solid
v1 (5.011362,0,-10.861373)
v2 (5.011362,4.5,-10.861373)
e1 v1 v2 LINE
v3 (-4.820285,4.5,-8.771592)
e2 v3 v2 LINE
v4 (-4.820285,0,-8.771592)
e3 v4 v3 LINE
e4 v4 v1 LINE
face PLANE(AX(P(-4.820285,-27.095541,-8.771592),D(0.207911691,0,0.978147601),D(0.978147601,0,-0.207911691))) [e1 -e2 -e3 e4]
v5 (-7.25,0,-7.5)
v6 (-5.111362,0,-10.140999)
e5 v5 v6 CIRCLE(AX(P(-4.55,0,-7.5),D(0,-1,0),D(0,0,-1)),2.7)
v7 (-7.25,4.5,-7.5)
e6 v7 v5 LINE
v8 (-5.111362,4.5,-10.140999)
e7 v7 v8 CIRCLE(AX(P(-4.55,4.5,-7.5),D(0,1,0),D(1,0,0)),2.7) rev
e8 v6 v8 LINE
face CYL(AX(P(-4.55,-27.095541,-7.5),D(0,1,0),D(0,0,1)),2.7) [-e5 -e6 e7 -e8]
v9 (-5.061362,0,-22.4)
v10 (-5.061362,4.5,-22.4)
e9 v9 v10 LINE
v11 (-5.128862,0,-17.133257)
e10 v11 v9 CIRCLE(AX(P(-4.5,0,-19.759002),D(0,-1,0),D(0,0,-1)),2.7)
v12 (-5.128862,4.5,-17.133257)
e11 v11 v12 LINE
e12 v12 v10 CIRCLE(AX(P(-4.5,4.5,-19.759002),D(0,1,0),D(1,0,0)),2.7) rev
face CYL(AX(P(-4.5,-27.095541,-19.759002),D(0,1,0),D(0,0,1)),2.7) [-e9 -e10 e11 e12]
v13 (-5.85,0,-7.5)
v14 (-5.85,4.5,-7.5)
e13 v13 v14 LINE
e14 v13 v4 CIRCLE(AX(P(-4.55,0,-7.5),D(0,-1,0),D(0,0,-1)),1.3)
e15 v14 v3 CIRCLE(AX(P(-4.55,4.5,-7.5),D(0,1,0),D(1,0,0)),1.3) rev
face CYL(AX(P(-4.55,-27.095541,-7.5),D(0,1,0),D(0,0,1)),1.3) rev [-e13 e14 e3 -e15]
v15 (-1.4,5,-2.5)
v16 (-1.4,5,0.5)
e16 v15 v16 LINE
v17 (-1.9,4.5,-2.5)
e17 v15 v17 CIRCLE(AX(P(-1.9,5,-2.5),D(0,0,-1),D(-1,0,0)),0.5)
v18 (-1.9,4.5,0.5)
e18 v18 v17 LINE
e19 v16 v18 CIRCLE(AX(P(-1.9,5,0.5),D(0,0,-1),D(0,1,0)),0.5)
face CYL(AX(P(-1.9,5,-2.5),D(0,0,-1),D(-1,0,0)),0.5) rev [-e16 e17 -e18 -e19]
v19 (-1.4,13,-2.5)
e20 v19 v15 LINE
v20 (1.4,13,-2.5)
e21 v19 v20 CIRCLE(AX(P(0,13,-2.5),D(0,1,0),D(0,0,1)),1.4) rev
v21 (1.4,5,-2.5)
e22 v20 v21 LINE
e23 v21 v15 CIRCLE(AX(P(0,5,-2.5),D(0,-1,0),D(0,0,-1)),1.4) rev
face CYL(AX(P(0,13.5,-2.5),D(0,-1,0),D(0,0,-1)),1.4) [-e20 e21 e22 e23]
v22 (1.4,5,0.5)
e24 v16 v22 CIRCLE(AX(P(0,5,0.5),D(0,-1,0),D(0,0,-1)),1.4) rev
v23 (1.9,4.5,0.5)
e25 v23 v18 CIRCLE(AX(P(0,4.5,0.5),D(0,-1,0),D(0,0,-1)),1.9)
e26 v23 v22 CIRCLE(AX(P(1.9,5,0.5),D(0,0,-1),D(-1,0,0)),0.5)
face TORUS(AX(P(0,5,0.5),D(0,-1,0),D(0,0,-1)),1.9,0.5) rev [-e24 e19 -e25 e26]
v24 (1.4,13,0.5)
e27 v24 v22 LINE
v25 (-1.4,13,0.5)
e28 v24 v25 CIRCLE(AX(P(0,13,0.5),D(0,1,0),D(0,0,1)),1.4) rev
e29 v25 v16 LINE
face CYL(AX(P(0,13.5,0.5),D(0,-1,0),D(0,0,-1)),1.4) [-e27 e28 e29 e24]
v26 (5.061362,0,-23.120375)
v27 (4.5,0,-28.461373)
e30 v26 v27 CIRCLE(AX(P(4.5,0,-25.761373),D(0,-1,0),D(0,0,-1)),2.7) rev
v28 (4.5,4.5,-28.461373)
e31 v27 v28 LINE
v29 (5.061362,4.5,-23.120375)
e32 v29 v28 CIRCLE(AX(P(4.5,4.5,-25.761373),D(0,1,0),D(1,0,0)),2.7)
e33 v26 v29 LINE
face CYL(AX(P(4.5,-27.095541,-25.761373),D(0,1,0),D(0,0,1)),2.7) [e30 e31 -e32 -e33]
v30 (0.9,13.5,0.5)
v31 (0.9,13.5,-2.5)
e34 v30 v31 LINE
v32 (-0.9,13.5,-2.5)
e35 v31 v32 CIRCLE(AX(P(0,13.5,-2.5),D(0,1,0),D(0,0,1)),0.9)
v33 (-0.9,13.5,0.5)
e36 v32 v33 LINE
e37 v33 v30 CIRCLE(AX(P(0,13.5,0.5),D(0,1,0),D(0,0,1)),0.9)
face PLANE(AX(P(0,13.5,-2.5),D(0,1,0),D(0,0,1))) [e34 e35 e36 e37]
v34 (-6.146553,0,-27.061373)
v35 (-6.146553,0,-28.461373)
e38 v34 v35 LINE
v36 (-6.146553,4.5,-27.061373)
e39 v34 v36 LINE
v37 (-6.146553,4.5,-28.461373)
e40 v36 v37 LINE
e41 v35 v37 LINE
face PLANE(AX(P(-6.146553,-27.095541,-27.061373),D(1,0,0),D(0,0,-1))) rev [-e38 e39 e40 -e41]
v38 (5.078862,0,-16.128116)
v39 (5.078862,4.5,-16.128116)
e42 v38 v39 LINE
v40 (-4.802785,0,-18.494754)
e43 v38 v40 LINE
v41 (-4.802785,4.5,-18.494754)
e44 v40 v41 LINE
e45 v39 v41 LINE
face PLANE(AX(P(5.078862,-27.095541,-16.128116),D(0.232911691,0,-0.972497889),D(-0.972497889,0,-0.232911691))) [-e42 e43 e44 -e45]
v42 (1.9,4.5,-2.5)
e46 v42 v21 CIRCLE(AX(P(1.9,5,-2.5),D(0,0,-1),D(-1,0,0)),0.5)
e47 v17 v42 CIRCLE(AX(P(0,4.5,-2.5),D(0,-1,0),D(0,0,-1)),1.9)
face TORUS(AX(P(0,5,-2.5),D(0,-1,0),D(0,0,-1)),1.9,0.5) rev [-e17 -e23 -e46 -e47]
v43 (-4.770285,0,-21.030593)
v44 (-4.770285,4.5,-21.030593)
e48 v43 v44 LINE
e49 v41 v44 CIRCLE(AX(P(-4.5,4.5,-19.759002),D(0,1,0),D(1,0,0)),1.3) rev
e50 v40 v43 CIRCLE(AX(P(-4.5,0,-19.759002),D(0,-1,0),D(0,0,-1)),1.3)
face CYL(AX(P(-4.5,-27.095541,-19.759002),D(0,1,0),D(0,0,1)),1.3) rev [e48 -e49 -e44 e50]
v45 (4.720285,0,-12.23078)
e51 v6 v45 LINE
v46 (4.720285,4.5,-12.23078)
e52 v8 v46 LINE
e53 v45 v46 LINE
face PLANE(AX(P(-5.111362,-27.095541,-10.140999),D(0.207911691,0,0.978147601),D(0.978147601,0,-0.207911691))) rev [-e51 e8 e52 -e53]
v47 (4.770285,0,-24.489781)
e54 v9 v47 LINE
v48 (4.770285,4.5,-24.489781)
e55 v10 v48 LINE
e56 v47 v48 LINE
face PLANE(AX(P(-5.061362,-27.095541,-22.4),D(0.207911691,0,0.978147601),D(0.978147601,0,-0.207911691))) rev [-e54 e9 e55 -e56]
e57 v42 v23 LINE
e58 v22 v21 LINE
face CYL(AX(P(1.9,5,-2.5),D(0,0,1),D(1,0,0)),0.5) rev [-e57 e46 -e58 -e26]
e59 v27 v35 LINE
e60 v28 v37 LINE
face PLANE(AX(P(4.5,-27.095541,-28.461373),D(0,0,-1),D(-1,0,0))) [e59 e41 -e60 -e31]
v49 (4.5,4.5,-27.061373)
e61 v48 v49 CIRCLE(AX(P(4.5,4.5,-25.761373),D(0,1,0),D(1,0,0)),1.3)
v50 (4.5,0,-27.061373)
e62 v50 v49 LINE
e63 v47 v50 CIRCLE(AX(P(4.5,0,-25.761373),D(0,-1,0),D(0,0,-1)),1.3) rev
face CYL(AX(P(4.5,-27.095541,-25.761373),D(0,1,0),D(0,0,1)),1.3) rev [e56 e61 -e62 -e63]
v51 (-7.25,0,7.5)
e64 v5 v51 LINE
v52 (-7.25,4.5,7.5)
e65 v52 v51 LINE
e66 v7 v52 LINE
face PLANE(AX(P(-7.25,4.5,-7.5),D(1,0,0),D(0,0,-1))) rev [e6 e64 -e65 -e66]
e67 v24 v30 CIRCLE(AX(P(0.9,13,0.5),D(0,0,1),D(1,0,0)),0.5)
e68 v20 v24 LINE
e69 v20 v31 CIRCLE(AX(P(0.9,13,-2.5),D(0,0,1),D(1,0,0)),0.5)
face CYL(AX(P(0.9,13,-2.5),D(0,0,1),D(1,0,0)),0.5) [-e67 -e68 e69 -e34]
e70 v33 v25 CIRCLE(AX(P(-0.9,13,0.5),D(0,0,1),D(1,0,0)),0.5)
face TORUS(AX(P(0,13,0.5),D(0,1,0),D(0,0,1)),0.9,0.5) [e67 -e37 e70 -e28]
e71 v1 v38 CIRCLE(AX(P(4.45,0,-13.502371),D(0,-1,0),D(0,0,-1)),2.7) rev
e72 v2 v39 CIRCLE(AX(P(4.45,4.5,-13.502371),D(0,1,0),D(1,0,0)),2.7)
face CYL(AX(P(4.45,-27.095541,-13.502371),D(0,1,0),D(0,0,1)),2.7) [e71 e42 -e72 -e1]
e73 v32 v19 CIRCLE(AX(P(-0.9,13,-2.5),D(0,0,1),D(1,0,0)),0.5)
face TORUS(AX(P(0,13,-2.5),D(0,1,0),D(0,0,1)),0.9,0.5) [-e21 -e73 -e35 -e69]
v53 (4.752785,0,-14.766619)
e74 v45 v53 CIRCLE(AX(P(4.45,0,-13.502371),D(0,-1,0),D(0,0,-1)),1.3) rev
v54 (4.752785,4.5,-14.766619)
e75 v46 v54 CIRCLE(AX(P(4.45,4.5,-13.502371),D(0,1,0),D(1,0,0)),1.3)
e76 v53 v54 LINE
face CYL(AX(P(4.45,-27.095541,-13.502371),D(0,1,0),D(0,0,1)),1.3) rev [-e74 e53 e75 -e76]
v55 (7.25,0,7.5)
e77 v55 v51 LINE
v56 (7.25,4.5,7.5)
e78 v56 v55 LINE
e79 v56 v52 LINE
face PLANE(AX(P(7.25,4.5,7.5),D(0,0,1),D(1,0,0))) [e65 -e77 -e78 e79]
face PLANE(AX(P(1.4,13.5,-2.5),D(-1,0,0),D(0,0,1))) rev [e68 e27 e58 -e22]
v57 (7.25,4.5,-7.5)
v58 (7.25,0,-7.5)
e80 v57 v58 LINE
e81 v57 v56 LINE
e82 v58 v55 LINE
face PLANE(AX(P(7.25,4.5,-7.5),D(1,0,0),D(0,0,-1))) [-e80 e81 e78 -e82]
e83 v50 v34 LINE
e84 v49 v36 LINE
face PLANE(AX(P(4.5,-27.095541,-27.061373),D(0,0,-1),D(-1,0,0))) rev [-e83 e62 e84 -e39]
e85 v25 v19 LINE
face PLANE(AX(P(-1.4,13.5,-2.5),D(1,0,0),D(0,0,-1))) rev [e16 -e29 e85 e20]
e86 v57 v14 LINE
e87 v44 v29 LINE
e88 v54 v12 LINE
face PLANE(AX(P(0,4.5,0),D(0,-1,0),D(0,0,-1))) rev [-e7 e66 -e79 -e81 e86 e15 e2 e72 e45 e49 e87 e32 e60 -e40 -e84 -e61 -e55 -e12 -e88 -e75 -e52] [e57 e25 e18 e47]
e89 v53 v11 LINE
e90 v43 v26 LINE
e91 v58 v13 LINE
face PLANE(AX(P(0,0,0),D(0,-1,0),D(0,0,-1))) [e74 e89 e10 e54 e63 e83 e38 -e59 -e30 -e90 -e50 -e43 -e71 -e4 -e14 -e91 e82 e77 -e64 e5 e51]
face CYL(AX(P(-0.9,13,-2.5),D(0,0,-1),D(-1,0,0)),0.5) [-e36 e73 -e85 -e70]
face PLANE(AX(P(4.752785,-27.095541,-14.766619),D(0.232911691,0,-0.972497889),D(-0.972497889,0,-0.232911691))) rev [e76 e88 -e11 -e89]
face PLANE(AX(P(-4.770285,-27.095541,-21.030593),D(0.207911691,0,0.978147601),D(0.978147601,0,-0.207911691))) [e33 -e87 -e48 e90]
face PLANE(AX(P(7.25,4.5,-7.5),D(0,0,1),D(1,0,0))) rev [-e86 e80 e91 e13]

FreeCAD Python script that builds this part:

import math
import FreeCAD as App
import Part
import Sketcher
from FreeCAD import Vector
Q = App.Units.Quantity


def edges_at(feature, points):
    """Names of the edges that pass closest to the given points."""
    edges = feature.Shape.Edges
    near = lambda p: min(range(len(edges)), key=lambda i: edges[i].distToShape(Part.Vertex(*p))[0])
    return sorted({f"Edge{near(p) + 1}" for p in points})


def add_polygon(sketch, points):
    """Adds a closed chain of lines whose ends are joined by coincident constraints."""
    first, n = sketch.GeometryCount, len(points)
    for a, b in zip(points, points[1:] + points[:1]):
        sketch.addGeometry(Part.LineSegment(App.Vector(*a, 0), App.Vector(*b, 0)), False)
    for i in range(n):
        sketch.addConstraint(Sketcher.Constraint("Coincident", first + i, 2, first + (i + 1) % n, 1))

doc = App.newDocument("Part")
body = doc.addObject("PartDesign::Body", "Body")

sketch1 = body.newObject("Sketcher::SketchObject", "Sketch")
sketch1.AttachmentSupport = (doc.getObject("XZ_Plane"), [""])
sketch1.MapMode = "FlatFace"
add_polygon(sketch1, [(-7, -8), (-7, 8), (7, 8), (7, -8)])
sketch1.addConstraint([
    Sketcher.Constraint("Vertical", 0),
    Sketcher.Constraint("Horizontal", 1),
    Sketcher.Constraint("Vertical", 2),
    Sketcher.Constraint("Horizontal", 3),
    Sketcher.Constraint("Symmetric", 0, 2, 2, 2, -1, 1),
    Sketcher.Constraint("DistanceY", 0, 1, 0, 2, 15.0),
    Sketcher.Constraint("DistanceX", 1, 1, 1, 2, 14.5),
])
pad1 = body.newObject("PartDesign::Pad", "Pad")
pad1.Profile = sketch1
pad1.Length = 4.5
pad1.Reversed = True

sketch2 = body.newObject("Sketcher::SketchObject", "Sketch001")
sketch2.AttachmentSupport = (doc.getObject("XZ_Plane"), [""])
sketch2.MapMode = "FlatFace"
sketch2.AttachmentOffset = App.Placement(Vector(0, 0, -4.5), App.Rotation())
sketch2.addGeometry([
    Part.LineSegment(Vector(-5.8, -5.5, 0), Vector(-5.8, -7.5, 0)),
    Part.ArcOfCircle(Part.Circle(Vector(-4.5, -7.5, 0), Vector(0, 0, 1), 1.3), math.radians(180), math.radians(258)),
    Part.LineSegment(Vector(-4.8, -8.8, 0), Vector(5, -10.9, 0)),
    Part.ArcOfCircle(Part.Circle(Vector(4.5, -13.5, 0), Vector(0, 0, 1), 2.7), math.radians(-77), math.radians(78)),
    Part.LineSegment(Vector(5.1, -16.1, 0), Vector(-4.8, -18.5, 0)),
    Part.ArcOfCircle(Part.Circle(Vector(-4.5, -19.8, 0), Vector(0, 0, 1), 1.3), math.radians(103), math.radians(258)),
    Part.LineSegment(Vector(-4.8, -21, 0), Vector(5.1, -23.1, 0)),
    Part.ArcOfCircle(Part.Circle(Vector(4.5, -25.8, 0), Vector(0, 0, 1), 2.7), math.radians(-90), math.radians(78)),
    Part.LineSegment(Vector(4.5, -28.5, 0), Vector(-6.1, -28.5, 0)),
    Part.LineSegment(Vector(-6.1, -28.5, 0), Vector(-6.1, -27.1, 0)),
    Part.LineSegment(Vector(-6.1, -27.1, 0), Vector(4.5, -27.1, 0)),
    Part.ArcOfCircle(Part.Circle(Vector(4.5, -25.8, 0), Vector(0, 0, 1), 1.3), math.radians(-90), math.radians(78)),
    Part.LineSegment(Vector(4.8, -24.5, 0), Vector(-5.1, -22.4, 0)),
    Part.ArcOfCircle(Part.Circle(Vector(-4.5, -19.8, 0), Vector(0, 0, 1), 2.7), math.radians(103), math.radians(258)),
    Part.LineSegment(Vector(-5.1, -17.1, 0), Vector(4.8, -14.8, 0)),
    Part.ArcOfCircle(Part.Circle(Vector(4.5, -13.5, 0), Vector(0, 0, 1), 1.3), math.radians(-77), math.radians(78)),
    Part.LineSegment(Vector(4.7, -12.2, 0), Vector(-5.1, -10.1, 0)),
    Part.ArcOfCircle(Part.Circle(Vector(-4.6, -7.5, 0), Vector(0, 0, 1), 2.7), math.radians(180), math.radians(258)),
    Part.LineSegment(Vector(-7.2, -7.5, 0), Vector(-7.2, -5.5, 0)),
    Part.LineSegment(Vector(-7.2, -5.5, 0), Vector(-5.8, -5.5, 0)),
], False)
sketch2.addConstraint([
    Sketcher.Constraint("Tangent", 0, 2, 1, 1),
    Sketcher.Constraint("Tangent", 1, 2, 2, 1),
    Sketcher.Constraint("Tangent", 2, 2, 3, 2),
    Sketcher.Constraint("Tangent", 3, 1, 4, 1),
    Sketcher.Constraint("Tangent", 4, 2, 5, 1),
    Sketcher.Constraint("Tangent", 5, 2, 6, 1),
    Sketcher.Constraint("Tangent", 6, 2, 7, 2),
    Sketcher.Constraint("Tangent", 7, 1, 8, 1),
    Sketcher.Constraint("Coincident", 8, 2, 9, 1),
    Sketcher.Constraint("Coincident", 9, 2, 10, 1),
    Sketcher.Constraint("Tangent", 10, 2, 11, 1),
    Sketcher.Constraint("Tangent", 11, 2, 12, 1),
    Sketcher.Constraint("Tangent", 12, 2, 13, 2),
    Sketcher.Constraint("Tangent", 13, 1, 14, 1),
    Sketcher.Constraint("Tangent", 14, 2, 15, 1),
    Sketcher.Constraint("Tangent", 15, 2, 16, 1),
    Sketcher.Constraint("Tangent", 16, 2, 17, 2),
    Sketcher.Constraint("Tangent", 17, 1, 18, 1),
    Sketcher.Constraint("Coincident", 18, 2, 19, 1),
    Sketcher.Constraint("Coincident", 19, 2, 0, 1),
    Sketcher.Constraint("Vertical", 0),
    Sketcher.Constraint("Horizontal", 8),
    Sketcher.Constraint("Vertical", 9),
    Sketcher.Constraint("Horizontal", 10),
    Sketcher.Constraint("Vertical", 18),
    Sketcher.Constraint("Horizontal", 19),
    Sketcher.Constraint("Coincident", 11, 3, 7, 3),
    Sketcher.Constraint("Coincident", 13, 3, 5, 3),
    Sketcher.Constraint("Coincident", 15, 3, 3, 3),
    Sketcher.Constraint("Coincident", 17, 3, 1, 3),
    Sketcher.Constraint("Equal", 1, 5),
    Sketcher.Constraint("Equal", 3, 7),
    Sketcher.Constraint("Equal", 5, 11),
    Sketcher.Constraint("Equal", 7, 13),
    Sketcher.Constraint("Equal", 11, 15),
    Sketcher.Constraint("Equal", 13, 17),
    Sketcher.Constraint("Parallel", 2, 6),
    Sketcher.Constraint("Equal", 2, 6),
    Sketcher.Constraint("Radius", 1, 1.3),
    Sketcher.Constraint("Radius", 3, 2.7),
    Sketcher.Constraint("Angle", 2, Q("-12 deg")),
    Sketcher.Constraint("DistanceX", 1, 3, 3, 3, 9.0),
    Sketcher.Constraint("DistanceY", 1, 3, -1, 1, 7.5),
    Sketcher.Constraint("DistanceX", 5, 3, -1, 1, 4.5),
    Sketcher.Constraint("DistanceY", 12, 2, -1, 1, 22.4),
    Sketcher.Constraint("DistanceX", 1, 3, -1, 1, 4.55),
    Sketcher.Constraint("DistanceX", 8, 2, 8, 1, 10.646553),
    Sketcher.Constraint("DistanceY", 0, 2, 0, 1, 1.959487),
])
pad2 = body.newObject("PartDesign::Pad", "Pad001")
pad2.Profile = sketch2
pad2.Length = 4.5

sketch3 = body.newObject("Sketcher::SketchObject", "Sketch002")
sketch3.AttachmentSupport = (doc.getObject("XZ_Plane"), [""])
sketch3.MapMode = "FlatFace"
sketch3.AttachmentOffset = App.Placement(Vector(0, 0, -4.5), App.Rotation())
sketch3.addGeometry([
    Part.LineSegment(Vector(1.4, 0.5, 0), Vector(1.4, -2.5, 0)),
    Part.ArcOfCircle(Part.Circle(Vector(0, -2.5, 0), Vector(0, 0, 1), 1.4), math.radians(180), math.radians(360)),
    Part.LineSegment(Vector(-1.4, -2.5, 0), Vector(-1.4, 0.5, 0)),
    Part.ArcOfCircle(Part.Circle(Vector(0, 0.5, 0), Vector(0, 0, 1), 1.4), math.radians(0), math.radians(180)),
], False)
sketch3.addConstraint([
    Sketcher.Constraint("Tangent", 0, 2, 1, 2),
    Sketcher.Constraint("Tangent", 1, 1, 2, 1),
    Sketcher.Constraint("Tangent", 2, 2, 3, 2),
    Sketcher.Constraint("Tangent", 3, 1, 0, 1),
    Sketcher.Constraint("Vertical", 0),
    Sketcher.Constraint("Vertical", 2),
    Sketcher.Constraint("PointOnObject", 1, 3, -2),
    Sketcher.Constraint("Radius", 1, 1.4),
    Sketcher.Constraint("DistanceY", 0, 2, 0, 1, 3.0),
    Sketcher.Constraint("DistanceY", 1, 3, -1, 1, 2.5),
])
pad3 = body.newObject("PartDesign::Pad", "Pad002")
pad3.Profile = sketch3
pad3.Length = 9
pad3.Reversed = True
doc.recompute()

fillet = body.newObject("PartDesign::Fillet", "Fillet")
fillet.Base = (pad3, edges_at(pad3, [
    (0, 4.5, -3.9),
    (-1.4, 4.5, -1),
    (0, 4.5, 1.9),
    (1.4, 4.5, -1),
    (0, 13.5, -3.9),
    (-1.4, 13.5, -1),
    (0, 13.5, 1.9),
    (1.4, 13.5, -1),
]))
fillet.Radius = 0.5

doc.recompute()
